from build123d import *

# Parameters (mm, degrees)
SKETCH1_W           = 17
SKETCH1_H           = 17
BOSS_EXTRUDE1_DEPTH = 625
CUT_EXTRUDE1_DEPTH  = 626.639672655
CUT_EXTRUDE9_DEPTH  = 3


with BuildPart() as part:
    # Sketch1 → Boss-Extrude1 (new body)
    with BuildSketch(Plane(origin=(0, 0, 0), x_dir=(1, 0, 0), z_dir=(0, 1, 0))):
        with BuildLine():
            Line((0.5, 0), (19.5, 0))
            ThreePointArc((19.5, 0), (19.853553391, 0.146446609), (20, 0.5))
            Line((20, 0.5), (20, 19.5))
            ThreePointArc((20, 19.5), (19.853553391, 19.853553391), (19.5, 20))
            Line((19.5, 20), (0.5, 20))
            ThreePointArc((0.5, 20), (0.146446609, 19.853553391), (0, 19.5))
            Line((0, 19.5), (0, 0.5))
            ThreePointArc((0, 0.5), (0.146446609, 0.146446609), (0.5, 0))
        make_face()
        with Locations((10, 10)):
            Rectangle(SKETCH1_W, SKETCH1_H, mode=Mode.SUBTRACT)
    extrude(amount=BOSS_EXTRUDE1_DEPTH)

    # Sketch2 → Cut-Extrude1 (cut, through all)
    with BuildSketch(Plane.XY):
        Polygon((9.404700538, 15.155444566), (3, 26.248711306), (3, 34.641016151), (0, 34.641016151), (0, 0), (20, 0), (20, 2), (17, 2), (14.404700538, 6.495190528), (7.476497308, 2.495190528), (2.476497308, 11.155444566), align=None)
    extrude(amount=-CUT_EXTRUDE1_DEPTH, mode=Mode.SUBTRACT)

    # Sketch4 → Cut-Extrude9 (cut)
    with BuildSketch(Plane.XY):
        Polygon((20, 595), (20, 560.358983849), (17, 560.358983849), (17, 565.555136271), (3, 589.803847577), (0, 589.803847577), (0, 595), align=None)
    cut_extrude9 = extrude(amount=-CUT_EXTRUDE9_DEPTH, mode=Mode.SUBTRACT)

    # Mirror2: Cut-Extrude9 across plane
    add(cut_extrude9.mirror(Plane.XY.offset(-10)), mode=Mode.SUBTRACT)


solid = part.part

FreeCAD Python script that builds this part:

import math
import FreeCAD as App
import Part
import Sketcher

V = App.Vector
Q = App.Units.Quantity


def add_polygon(sketch, points):
    """Adds a closed chain of lines whose ends are joined by coincident constraints."""
    first, n = sketch.GeometryCount, len(points)
    for a, b in zip(points, points[1:] + points[:1]):
        sketch.addGeometry(Part.LineSegment(App.Vector(*a, 0), App.Vector(*b, 0)), False)
    for i in range(n):
        sketch.addConstraint(Sketcher.Constraint("Coincident", first + i, 2, first + (i + 1) % n, 1))

doc = App.newDocument("Part")
body = doc.addObject("PartDesign::Body", "Body")

# Sketch on XZ plane
sketch1 = doc.addObject("Sketcher::SketchObject", "Sketch")
body.addObject(sketch1)
sketch1.AttachmentSupport = (doc.XZ_Plane, [""])
sketch1.MapMode = "FlatFace"
sketch1.addGeometry(Part.LineSegment(V(0.5, 0, 0), V(19.5, 0, 0)), False)  # 0
sketch1.addGeometry(Part.ArcOfCircle(Part.Circle(V(19.5, -0.5, 0), V(0, 0, 1), 0.5), math.radians(0), math.radians(90)), False)  # 1
sketch1.addGeometry(Part.LineSegment(V(20, -0.5, 0), V(20, -19.5, 0)), False)  # 2
sketch1.addGeometry(Part.ArcOfCircle(Part.Circle(V(19.5, -19.5, 0), V(0, 0, 1), 0.5), math.radians(-90), math.radians(0)), False)  # 3
sketch1.addGeometry(Part.LineSegment(V(19.5, -20, 0), V(0.5, -20, 0)), False)  # 4
sketch1.addGeometry(Part.ArcOfCircle(Part.Circle(V(0.5, -19.5, 0), V(0, 0, 1), 0.5), math.radians(180), math.radians(270)), False)  # 5
sketch1.addGeometry(Part.LineSegment(V(0, -19.5, 0), V(0, -0.5, 0)), False)  # 6
sketch1.addGeometry(Part.ArcOfCircle(Part.Circle(V(0.5, -0.5, 0), V(0, 0, 1), 0.5), math.radians(90), math.radians(180)), False)  # 7
add_polygon(sketch1, [(18.5, -1.5), (1.5, -1.5), (1.5, -18.5), (18.5, -18.5)])  # lines 8-11
sketch1.addConstraint(Sketcher.Constraint("Tangent", 0, 2, 1, 2))
sketch1.addConstraint(Sketcher.Constraint("Tangent", 1, 1, 2, 1))
sketch1.addConstraint(Sketcher.Constraint("Tangent", 2, 2, 3, 2))
sketch1.addConstraint(Sketcher.Constraint("Tangent", 3, 1, 4, 1))
sketch1.addConstraint(Sketcher.Constraint("Tangent", 4, 2, 5, 2))
sketch1.addConstraint(Sketcher.Constraint("Tangent", 5, 1, 6, 1))
sketch1.addConstraint(Sketcher.Constraint("Tangent", 6, 2, 7, 2))
sketch1.addConstraint(Sketcher.Constraint("Tangent", 7, 1, 0, 1))
sketch1.addConstraint(Sketcher.Constraint("Horizontal", 0))
sketch1.addConstraint(Sketcher.Constraint("Vertical", 2))
sketch1.addConstraint(Sketcher.Constraint("Horizontal", 4))
sketch1.addConstraint(Sketcher.Constraint("Vertical", 6))
sketch1.addConstraint(Sketcher.Constraint("Horizontal", 8))
sketch1.addConstraint(Sketcher.Constraint("Vertical", 9))
sketch1.addConstraint(Sketcher.Constraint("Horizontal", 10))
sketch1.addConstraint(Sketcher.Constraint("Vertical", 11))
sketch1.addConstraint(Sketcher.Constraint("Equal", 1, 3))
sketch1.addConstraint(Sketcher.Constraint("Equal", 3, 5))
sketch1.addConstraint(Sketcher.Constraint("Equal", 5, 7))
sketch1.addConstraint(Sketcher.Constraint("PointOnObject", 0, 2, -1))
sketch1.addConstraint(Sketcher.Constraint("PointOnObject", 5, 1, -2))
sketch1.addConstraint(Sketcher.Constraint("Equal", 4, 2))
sketch1.addConstraint(Sketcher.Constraint("Equal", 10, 9))
sketch1.addConstraint(Sketcher.Constraint("Radius", 1, Q("0.5 mm")))
sketch1.addConstraint(Sketcher.Constraint("DistanceX", 0, 1, 0, 2, Q("19 mm")))
sketch1.addConstraint(Sketcher.Constraint("DistanceX", 8, 2, 8, 1, Q("17 mm")))
sketch1.addConstraint(Sketcher.Constraint("DistanceX", 7, 3, 8, 2, Q("1 mm")))
sketch1.addConstraint(Sketcher.Constraint("DistanceY", 8, 2, 7, 3, Q("1 mm")))
pad1 = doc.addObject("PartDesign::Pad", "Pad")
body.addObject(pad1)
pad1.Profile = sketch1
pad1.Length = 625
pad1.Reversed = True

# Sketch on XY plane
sketch2 = doc.addObject("Sketcher::SketchObject", "Sketch001")
body.addObject(sketch2)
sketch2.AttachmentSupport = (doc.XY_Plane, [""])
sketch2.MapMode = "FlatFace"
add_polygon(sketch2, [(9.4, 15.2), (3, 26.2), (3, 34.6), (0, 34.6), (0, 0), (20, 0), (20, 2), (17, 2), (14.4, 6.5), (7.5, 2.5), (2.5, 11.2)])  # lines 0-10
sketch2.addConstraint(Sketcher.Constraint("Vertical", 1))
sketch2.addConstraint(Sketcher.Constraint("Horizontal", 2))
sketch2.addConstraint(Sketcher.Constraint("Vertical", 3))
sketch2.addConstraint(Sketcher.Constraint("Horizontal", 4))
sketch2.addConstraint(Sketcher.Constraint("Vertical", 5))
sketch2.addConstraint(Sketcher.Constraint("Horizontal", 6))
sketch2.addConstraint(Sketcher.Constraint("Coincident", 3, 2, -1, 1))
sketch2.addConstraint(Sketcher.Constraint("Parallel", 0, 7))
sketch2.addConstraint(Sketcher.Constraint("Perpendicular", 7, 8))
sketch2.addConstraint(Sketcher.Constraint("Perpendicular", 8, 9))
sketch2.addConstraint(Sketcher.Constraint("Perpendicular", 9, 10))
sketch2.addConstraint(Sketcher.Constraint("Equal", 2, 6))
sketch2.addConstraint(Sketcher.Constraint("Equal", 8, 10))
sketch2.addConstraint(Sketcher.Constraint("DistanceX", 2, 2, 2, 1, Q("3 mm")))
sketch2.addConstraint(Sketcher.Constraint("DistanceX", 4, 1, 4, 2, Q("20 mm")))
sketch2.addConstraint(Sketcher.Constraint("DistanceY", 5, 1, 5, 2, Q("2 mm")))
sketch2.addConstraint(Sketcher.Constraint("Angle", 0, Q("120 deg")))
sketch2.addConstraint(Sketcher.Constraint("Distance", 8, Q("8 mm")))
sketch2.addConstraint(Sketcher.Constraint("Distance", 9, Q("10 mm")))
sketch2.addConstraint(Sketcher.Constraint("Distance", 0, Q("12.809401 mm")))
sketch2.addConstraint(Sketcher.Constraint("DistanceY", 1, 1, 1, 2, Q("8.392305 mm")))
pocket1 = doc.addObject("PartDesign::Pocket", "Pocket")
body.addObject(pocket1)
pocket1.Profile = sketch2
pocket1.Type = "ThroughAll"

# Sketch on XY plane
sketch3 = doc.addObject("Sketcher::SketchObject", "Sketch002")
body.addObject(sketch3)
sketch3.AttachmentSupport = (doc.XY_Plane, [""])
sketch3.MapMode = "FlatFace"
add_polygon(sketch3, [(20, 560.4), (20, 595), (0, 595), (0, 589.8), (3, 589.8), (17, 565.6), (17, 560.4)])  # lines 0-6
sketch3.addConstraint(Sketcher.Constraint("Vertical", 0))
sketch3.addConstraint(Sketcher.Constraint("Horizontal", 1))
sketch3.addConstraint(Sketcher.Constraint("Vertical", 2))
sketch3.addConstraint(Sketcher.Constraint("Horizontal", 3))
sketch3.addConstraint(Sketcher.Constraint("Vertical", 5))
sketch3.addConstraint(Sketcher.Constraint("Horizontal", 6))
sketch3.addConstraint(Sketcher.Constraint("PointOnObject", 1, 2, -2))
sketch3.addConstraint(Sketcher.Constraint("Equal", 3, 6))
sketch3.addConstraint(Sketcher.Constraint("Equal", 2, 5))
sketch3.addConstraint(Sketcher.Constraint("DistanceX", 1, 2, 1, 1, Q("20 mm")))
sketch3.addConstraint(Sketcher.Constraint("DistanceX", 3, 1, 3, 2, Q("3 mm")))
sketch3.addConstraint(Sketcher.Constraint("Angle", 4, Q("-60 deg")))
sketch3.addConstraint(Sketcher.Constraint("DistanceY", -1, 1, 0, 2, Q("595 mm")))
sketch3.addConstraint(Sketcher.Constraint("DistanceY", 0, 1, 0, 2, Q("34.641016 mm")))
pocket2 = doc.addObject("PartDesign::Pocket", "Pocket001")
body.addObject(pocket2)
pocket2.Profile = sketch3
pocket2.Length = 3
doc.recompute()

datumplane = doc.addObject("PartDesign::Plane", "DatumPlane")
body.addObject(datumplane)
datumplane.AttachmentSupport = (doc.XY_Plane, [""])
datumplane.MapMode = "FlatFace"
datumplane.AttachmentOffset = App.Placement(V(0, 0, -10), App.Rotation())
mirrored = doc.addObject("PartDesign::Mirrored", "Mirrored")
body.addObject(mirrored)
mirrored.Originals = [pocket2]
mirrored.MirrorPlane = (datumplane, [""])
body.Tip = mirrored

doc.recompute()
